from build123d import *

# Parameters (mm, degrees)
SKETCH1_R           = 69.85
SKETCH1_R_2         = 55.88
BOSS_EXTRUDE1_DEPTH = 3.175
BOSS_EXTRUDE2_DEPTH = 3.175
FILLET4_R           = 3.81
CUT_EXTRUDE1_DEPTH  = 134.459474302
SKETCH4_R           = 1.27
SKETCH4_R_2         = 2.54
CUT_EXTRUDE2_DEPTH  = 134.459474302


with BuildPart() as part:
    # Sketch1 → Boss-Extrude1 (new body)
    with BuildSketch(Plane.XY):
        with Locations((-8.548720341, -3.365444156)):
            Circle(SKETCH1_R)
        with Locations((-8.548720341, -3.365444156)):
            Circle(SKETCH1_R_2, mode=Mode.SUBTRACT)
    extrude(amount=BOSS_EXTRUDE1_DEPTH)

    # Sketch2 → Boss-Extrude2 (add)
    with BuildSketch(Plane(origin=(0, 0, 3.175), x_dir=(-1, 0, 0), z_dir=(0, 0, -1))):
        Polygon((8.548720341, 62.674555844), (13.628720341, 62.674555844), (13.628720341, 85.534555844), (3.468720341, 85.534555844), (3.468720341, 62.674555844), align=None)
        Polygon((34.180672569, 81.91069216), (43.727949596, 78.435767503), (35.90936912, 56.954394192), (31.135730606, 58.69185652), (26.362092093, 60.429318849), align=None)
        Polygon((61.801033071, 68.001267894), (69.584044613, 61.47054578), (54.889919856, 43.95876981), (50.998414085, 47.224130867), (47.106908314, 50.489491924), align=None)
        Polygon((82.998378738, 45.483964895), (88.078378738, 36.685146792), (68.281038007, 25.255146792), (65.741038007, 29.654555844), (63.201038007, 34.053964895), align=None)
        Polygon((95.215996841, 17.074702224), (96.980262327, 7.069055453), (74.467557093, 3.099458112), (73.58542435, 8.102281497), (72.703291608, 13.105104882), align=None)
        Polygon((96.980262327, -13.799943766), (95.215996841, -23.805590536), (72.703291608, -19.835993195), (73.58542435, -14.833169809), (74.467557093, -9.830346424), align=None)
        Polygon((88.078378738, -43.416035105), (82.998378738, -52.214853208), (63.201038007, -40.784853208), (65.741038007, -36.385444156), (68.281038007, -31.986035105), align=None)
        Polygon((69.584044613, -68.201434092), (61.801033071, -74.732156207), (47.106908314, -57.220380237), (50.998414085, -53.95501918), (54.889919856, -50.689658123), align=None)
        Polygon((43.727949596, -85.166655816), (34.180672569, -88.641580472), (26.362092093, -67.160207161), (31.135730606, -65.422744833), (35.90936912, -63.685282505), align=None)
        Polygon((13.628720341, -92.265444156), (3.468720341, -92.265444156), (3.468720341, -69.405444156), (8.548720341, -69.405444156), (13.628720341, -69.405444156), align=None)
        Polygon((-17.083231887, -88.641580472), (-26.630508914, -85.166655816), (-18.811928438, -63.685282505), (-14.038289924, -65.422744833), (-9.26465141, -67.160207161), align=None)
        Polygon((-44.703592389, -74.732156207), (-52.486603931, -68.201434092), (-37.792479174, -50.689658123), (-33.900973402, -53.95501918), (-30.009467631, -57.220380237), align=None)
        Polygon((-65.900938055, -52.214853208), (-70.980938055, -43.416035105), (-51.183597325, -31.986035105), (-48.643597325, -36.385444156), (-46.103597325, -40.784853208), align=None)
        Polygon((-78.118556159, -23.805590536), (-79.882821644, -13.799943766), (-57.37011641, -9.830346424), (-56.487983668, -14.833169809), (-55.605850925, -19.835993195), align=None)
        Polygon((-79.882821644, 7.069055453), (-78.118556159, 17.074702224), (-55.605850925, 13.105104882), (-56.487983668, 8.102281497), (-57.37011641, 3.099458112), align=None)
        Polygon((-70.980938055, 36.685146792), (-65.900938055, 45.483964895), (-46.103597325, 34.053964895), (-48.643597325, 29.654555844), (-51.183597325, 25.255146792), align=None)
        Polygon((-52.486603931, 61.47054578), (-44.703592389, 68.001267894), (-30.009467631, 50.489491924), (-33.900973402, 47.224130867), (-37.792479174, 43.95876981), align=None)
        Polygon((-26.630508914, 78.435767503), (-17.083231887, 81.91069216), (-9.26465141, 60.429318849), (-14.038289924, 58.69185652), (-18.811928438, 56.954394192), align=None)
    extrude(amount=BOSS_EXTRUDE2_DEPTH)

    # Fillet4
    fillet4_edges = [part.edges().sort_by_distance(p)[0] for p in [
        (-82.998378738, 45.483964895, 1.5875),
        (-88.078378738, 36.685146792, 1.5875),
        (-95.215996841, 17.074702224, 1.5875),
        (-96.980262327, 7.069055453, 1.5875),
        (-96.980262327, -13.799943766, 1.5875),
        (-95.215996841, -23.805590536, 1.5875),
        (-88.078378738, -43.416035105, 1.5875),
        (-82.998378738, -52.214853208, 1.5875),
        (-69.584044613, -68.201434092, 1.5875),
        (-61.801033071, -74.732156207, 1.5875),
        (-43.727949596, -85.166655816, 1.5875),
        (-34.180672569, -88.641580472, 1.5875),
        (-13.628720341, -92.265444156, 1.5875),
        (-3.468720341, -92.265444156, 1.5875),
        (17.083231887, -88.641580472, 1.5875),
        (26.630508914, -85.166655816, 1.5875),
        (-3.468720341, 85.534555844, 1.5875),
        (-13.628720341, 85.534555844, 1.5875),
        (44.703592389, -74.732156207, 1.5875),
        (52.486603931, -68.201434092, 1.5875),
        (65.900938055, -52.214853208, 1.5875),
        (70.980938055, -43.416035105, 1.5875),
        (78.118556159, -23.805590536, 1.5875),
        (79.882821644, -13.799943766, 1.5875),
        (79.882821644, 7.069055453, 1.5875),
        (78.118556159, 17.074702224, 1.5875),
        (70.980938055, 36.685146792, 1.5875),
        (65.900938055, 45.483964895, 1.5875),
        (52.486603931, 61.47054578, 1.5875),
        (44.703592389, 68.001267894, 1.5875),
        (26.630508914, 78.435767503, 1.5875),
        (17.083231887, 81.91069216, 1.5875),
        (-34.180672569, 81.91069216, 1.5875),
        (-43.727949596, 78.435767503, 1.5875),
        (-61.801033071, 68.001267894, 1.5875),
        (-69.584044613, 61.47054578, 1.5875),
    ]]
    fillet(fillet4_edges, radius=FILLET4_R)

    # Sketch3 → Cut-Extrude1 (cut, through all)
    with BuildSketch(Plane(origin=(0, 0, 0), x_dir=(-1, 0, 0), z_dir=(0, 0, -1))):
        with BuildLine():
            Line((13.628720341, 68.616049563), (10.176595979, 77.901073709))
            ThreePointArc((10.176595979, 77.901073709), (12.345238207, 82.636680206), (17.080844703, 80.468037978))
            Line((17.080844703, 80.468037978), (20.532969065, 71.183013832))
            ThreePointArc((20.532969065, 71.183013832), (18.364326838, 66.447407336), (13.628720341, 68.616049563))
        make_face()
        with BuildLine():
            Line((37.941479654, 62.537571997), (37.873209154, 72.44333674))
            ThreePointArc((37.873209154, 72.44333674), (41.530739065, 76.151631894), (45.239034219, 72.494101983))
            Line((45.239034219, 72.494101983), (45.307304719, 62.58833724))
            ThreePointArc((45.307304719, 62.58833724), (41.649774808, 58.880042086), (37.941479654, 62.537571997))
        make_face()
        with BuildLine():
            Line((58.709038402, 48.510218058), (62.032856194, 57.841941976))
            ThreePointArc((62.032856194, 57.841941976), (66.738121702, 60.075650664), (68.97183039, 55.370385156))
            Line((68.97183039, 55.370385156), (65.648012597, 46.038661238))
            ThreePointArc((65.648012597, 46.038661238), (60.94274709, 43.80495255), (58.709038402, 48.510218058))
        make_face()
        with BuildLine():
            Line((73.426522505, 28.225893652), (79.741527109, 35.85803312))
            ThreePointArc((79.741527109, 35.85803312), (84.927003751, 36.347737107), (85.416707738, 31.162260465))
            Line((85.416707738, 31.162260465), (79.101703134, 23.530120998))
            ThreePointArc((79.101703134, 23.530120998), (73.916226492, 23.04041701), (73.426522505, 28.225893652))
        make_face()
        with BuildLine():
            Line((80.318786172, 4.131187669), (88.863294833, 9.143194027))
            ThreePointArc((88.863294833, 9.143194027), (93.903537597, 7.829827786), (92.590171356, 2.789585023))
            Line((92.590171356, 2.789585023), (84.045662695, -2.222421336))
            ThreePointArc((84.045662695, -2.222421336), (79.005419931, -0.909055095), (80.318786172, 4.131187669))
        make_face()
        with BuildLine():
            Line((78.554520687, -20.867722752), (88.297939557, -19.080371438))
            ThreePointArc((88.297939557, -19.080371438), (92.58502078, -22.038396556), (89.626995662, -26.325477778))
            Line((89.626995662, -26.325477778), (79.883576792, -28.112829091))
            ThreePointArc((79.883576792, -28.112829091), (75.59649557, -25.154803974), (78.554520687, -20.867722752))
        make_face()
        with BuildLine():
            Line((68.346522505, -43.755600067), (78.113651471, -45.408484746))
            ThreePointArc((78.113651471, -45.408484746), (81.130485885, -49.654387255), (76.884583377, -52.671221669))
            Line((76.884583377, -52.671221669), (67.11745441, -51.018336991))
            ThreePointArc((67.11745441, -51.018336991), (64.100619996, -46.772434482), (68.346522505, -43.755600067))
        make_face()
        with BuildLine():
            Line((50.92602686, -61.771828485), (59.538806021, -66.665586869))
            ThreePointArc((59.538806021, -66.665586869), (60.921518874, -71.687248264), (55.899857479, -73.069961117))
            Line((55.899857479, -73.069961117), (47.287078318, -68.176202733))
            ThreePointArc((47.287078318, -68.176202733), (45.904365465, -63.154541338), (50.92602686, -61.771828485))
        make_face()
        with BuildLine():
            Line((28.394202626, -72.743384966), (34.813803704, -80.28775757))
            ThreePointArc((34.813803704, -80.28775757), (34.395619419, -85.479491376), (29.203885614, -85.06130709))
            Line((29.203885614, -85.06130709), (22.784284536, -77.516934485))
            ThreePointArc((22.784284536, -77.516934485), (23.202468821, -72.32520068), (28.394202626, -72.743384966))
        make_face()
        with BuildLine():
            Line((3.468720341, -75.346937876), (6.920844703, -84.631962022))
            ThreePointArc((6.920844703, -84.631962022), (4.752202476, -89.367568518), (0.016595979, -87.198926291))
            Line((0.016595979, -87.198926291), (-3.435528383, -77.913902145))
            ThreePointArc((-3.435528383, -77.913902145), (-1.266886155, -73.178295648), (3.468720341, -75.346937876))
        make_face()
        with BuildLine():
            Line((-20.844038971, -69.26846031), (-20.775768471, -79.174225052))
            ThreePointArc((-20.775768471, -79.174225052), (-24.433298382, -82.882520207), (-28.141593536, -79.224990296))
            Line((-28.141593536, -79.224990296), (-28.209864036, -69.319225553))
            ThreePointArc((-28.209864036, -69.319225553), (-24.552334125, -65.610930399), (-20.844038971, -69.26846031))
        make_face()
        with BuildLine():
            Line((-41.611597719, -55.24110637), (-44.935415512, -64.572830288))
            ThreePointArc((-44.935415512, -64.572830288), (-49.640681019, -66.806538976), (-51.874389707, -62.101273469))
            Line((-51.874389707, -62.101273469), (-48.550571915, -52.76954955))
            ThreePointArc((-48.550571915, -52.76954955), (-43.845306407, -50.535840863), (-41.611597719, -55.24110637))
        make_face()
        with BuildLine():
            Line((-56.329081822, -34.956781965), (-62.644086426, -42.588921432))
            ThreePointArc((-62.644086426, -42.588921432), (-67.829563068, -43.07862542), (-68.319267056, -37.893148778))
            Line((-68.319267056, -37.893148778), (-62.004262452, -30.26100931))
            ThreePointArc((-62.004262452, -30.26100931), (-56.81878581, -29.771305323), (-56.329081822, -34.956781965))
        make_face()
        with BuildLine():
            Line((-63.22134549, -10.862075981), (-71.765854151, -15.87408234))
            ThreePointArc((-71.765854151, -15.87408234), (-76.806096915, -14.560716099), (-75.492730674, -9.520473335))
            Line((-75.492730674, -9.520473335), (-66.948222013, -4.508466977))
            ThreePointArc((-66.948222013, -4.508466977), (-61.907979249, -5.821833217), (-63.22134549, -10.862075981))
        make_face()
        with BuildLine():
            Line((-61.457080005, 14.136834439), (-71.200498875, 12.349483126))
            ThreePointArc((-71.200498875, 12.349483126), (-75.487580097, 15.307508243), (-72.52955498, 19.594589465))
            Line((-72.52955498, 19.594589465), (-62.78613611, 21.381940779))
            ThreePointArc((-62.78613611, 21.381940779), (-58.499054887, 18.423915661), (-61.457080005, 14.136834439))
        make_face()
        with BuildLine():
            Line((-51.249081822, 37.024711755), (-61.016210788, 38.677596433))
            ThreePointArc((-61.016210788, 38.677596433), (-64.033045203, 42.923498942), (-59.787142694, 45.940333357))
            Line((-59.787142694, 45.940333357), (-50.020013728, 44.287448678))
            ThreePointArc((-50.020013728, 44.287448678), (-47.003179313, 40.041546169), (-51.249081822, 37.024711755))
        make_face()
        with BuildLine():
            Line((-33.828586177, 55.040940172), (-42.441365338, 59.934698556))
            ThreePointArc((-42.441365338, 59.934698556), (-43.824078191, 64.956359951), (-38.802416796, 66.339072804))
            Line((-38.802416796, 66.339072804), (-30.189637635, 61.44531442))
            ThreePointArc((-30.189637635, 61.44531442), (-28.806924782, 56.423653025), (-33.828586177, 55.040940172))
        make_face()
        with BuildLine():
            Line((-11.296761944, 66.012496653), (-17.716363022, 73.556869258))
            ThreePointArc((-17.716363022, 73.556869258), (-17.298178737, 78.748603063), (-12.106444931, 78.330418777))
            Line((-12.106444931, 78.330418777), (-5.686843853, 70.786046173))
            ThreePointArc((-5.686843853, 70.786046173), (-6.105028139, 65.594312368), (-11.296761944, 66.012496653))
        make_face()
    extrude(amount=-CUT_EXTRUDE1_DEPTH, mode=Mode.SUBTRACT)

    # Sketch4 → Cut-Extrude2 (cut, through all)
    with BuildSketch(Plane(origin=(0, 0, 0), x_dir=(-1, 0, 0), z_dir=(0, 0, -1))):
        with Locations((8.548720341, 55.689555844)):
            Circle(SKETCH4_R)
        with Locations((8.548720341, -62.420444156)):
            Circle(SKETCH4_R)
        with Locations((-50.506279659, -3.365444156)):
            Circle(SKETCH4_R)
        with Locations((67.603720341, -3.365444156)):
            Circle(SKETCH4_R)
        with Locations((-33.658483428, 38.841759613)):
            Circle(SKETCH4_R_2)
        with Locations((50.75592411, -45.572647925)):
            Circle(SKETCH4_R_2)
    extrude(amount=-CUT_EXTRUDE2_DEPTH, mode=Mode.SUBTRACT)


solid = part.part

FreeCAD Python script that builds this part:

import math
import FreeCAD as App
import Part
import Sketcher

V = App.Vector
Q = App.Units.Quantity


def edges_at(feature, points):
    """Names of the edges that pass closest to the given points."""
    edges = feature.Shape.Edges
    near = lambda p: min(range(len(edges)), key=lambda i: edges[i].distToShape(Part.Vertex(*p))[0])
    return sorted({f"Edge{near(p) + 1}" for p in points})

doc = App.newDocument("Part")
params = doc.addObject("Spreadsheet::Sheet", "Params")
for row, (alias, value) in enumerate([
    ("sketch1_diameter", "5.5 in"),
    ("sketch1_diameter2", "4.4 in"),
    ("pad1_length", "0.125 in"),
    ("sketch2_width", "0.4 in"),
    ("sketch2_height", "0.9 in"),
    ("sketch2_length", "0.4 in"),
    ("sketch2_length2", "0.9 in"),
    ("pad2_length", "0.125 in"),
    ("fillet_radius", "0.15 in"),
    ("sketch3_radius", "0.145 in"),
    ("sketch3_length", "0.39 in"),
    ("sketch4_diameter", "0.1 in"),
    ("sketch4_diameter2", "0.2 in"),
], start=1):
    params.set(f"A{row}", alias)
    params.set(f"B{row}", "=" + value)
    params.setAlias(f"B{row}", alias)

body = doc.addObject("PartDesign::Body", "Body")

# Sketch on XY plane
sketch1 = doc.addObject("Sketcher::SketchObject", "Sketch")
body.addObject(sketch1)
sketch1.AttachmentSupport = (doc.XY_Plane, [""])
sketch1.MapMode = "FlatFace"
sketch1.addGeometry([
    Part.Circle(V(-9, -3, 0), V(0, 0, 1), 70),
    Part.Circle(V(-9, -3, 0), V(0, 0, 1), 56),
], False)
sketch1.addConstraint([
    Sketcher.Constraint("Coincident", 1, 3, 0, 3),
    Sketcher.Constraint("Diameter", 0, Q("5.5 in")),
    Sketcher.Constraint("Diameter", 1, Q("4.4 in")),
    Sketcher.Constraint("DistanceX", 0, 3, -1, 1, 8.54872),
    Sketcher.Constraint("DistanceY", 0, 3, -1, 1, 3.365444),
])
sketch1.setExpression("Constraints[1]", "Params.sketch1_diameter")
sketch1.setExpression("Constraints[2]", "Params.sketch1_diameter2")
pad1 = doc.addObject("PartDesign::Pad", "Pad")
body.addObject(pad1)
pad1.Profile = sketch1
pad1.setExpression("Length", "Params.pad1_length")

# Sketch on XY plane
sketch2 = doc.addObject("Sketcher::SketchObject", "Sketch001")
body.addObject(sketch2)
sketch2.AttachmentSupport = (doc.XY_Plane, [""])
sketch2.MapMode = "FlatFace"
sketch2.AttachmentOffset = App.Placement(V(0, 0, 0.125 * 25.4), App.Rotation())
sketch2.addGeometry([
    Part.LineSegment(V(-14, 63, 0), V(-14, 86, 0)),  # 0
    Part.LineSegment(V(-14, 86, 0), V(-3, 86, 0)),  # 1
    Part.LineSegment(V(-3, 86, 0), V(-3, 63, 0)),  # 2
    Part.LineSegment(V(-3, 63, 0), V(-14, 63, 0)),  # 3
    Part.LineSegment(V(-44, 78, 0), V(-34, 82, 0)),  # 4
    Part.LineSegment(V(-34, 82, 0), V(-26, 60, 0)),  # 5
    Part.LineSegment(V(-26, 60, 0), V(-31, 59, 0)),  # 6
    Part.LineSegment(V(-31, 59, 0), V(-36, 57, 0)),  # 7
    Part.LineSegment(V(-36, 57, 0), V(-44, 78, 0)),  # 8
    Part.LineSegment(V(-70, 61, 0), V(-62, 68, 0)),  # 9
    Part.LineSegment(V(-62, 68, 0), V(-47, 50, 0)),  # 10
    Part.LineSegment(V(-47, 50, 0), V(-55, 44, 0)),  # 11
    Part.LineSegment(V(-55, 44, 0), V(-70, 61, 0)),  # 12
    Part.LineSegment(V(-88, 37, 0), V(-83, 45, 0)),  # 13
    Part.LineSegment(V(-83, 45, 0), V(-63, 34, 0)),  # 14
    Part.LineSegment(V(-63, 34, 0), V(-66, 30, 0)),  # 15
    Part.LineSegment(V(-66, 30, 0), V(-68, 25, 0)),  # 16
    Part.LineSegment(V(-68, 25, 0), V(-88, 37, 0)),  # 17
    Part.LineSegment(V(-97, 7, 0), V(-95, 17, 0)),  # 18
    Part.LineSegment(V(-95, 17, 0), V(-73, 13, 0)),  # 19
    Part.LineSegment(V(-73, 13, 0), V(-74, 8, 0)),  # 20
    Part.LineSegment(V(-74, 8, 0), V(-74, 3, 0)),  # 21
    Part.LineSegment(V(-74, 3, 0), V(-97, 7, 0)),  # 22
    Part.LineSegment(V(-95, -24, 0), V(-97, -14, 0)),  # 23
    Part.LineSegment(V(-97, -14, 0), V(-74, -10, 0)),  # 24
    Part.LineSegment(V(-74, -10, 0), V(-74, -15, 0)),  # 25
    Part.LineSegment(V(-74, -15, 0), V(-73, -20, 0)),  # 26
    Part.LineSegment(V(-73, -20, 0), V(-95, -24, 0)),  # 27
    Part.LineSegment(V(-83, -52, 0), V(-88, -43, 0)),  # 28
    Part.LineSegment(V(-88, -43, 0), V(-68, -32, 0)),  # 29
    Part.LineSegment(V(-68, -32, 0), V(-66, -36, 0)),  # 30
    Part.LineSegment(V(-66, -36, 0), V(-63, -41, 0)),  # 31
    Part.LineSegment(V(-63, -41, 0), V(-83, -52, 0)),  # 32
    Part.LineSegment(V(-62, -75, 0), V(-70, -68, 0)),  # 33
    Part.LineSegment(V(-70, -68, 0), V(-55, -51, 0)),  # 34
    Part.LineSegment(V(-55, -51, 0), V(-47, -57, 0)),  # 35
    Part.LineSegment(V(-47, -57, 0), V(-62, -75, 0)),  # 36
    Part.LineSegment(V(-34, -89, 0), V(-44, -85, 0)),  # 37
    Part.LineSegment(V(-44, -85, 0), V(-36, -64, 0)),  # 38
    Part.LineSegment(V(-36, -64, 0), V(-31, -65, 0)),  # 39
    Part.LineSegment(V(-31, -65, 0), V(-26, -67, 0)),  # 40
    Part.LineSegment(V(-26, -67, 0), V(-34, -89, 0)),  # 41
    Part.LineSegment(V(-3, -92, 0), V(-14, -92, 0)),  # 42
    Part.LineSegment(V(-14, -92, 0), V(-14, -69, 0)),  # 43
    Part.LineSegment(V(-14, -69, 0), V(-3, -69, 0)),  # 44
    Part.LineSegment(V(-3, -69, 0), V(-3, -92, 0)),  # 45
    Part.LineSegment(V(27, -85, 0), V(17, -89, 0)),  # 46
    Part.LineSegment(V(17, -89, 0), V(9, -67, 0)),  # 47
    Part.LineSegment(V(9, -67, 0), V(19, -64, 0)),  # 48
    Part.LineSegment(V(19, -64, 0), V(27, -85, 0)),  # 49
    Part.LineSegment(V(52, -68, 0), V(45, -75, 0)),  # 50
    Part.LineSegment(V(45, -75, 0), V(30, -57, 0)),  # 51
    Part.LineSegment(V(30, -57, 0), V(34, -54, 0)),  # 52
    Part.LineSegment(V(34, -54, 0), V(38, -51, 0)),  # 53
    Part.LineSegment(V(38, -51, 0), V(52, -68, 0)),  # 54
    Part.LineSegment(V(71, -43, 0), V(66, -52, 0)),  # 55
    Part.LineSegment(V(66, -52, 0), V(46, -41, 0)),  # 56
    Part.LineSegment(V(46, -41, 0), V(49, -36, 0)),  # 57
    Part.LineSegment(V(49, -36, 0), V(51, -32, 0)),  # 58
    Part.LineSegment(V(51, -32, 0), V(71, -43, 0)),  # 59
    Part.LineSegment(V(80, -14, 0), V(78, -24, 0)),  # 60
    Part.LineSegment(V(78, -24, 0), V(56, -20, 0)),  # 61
    Part.LineSegment(V(56, -20, 0), V(56, -15, 0)),  # 62
    Part.LineSegment(V(56, -15, 0), V(57, -10, 0)),  # 63
    Part.LineSegment(V(57, -10, 0), V(80, -14, 0)),  # 64
    Part.LineSegment(V(78, 17, 0), V(80, 7, 0)),  # 65
    Part.LineSegment(V(80, 7, 0), V(57, 3, 0)),  # 66
    Part.LineSegment(V(57, 3, 0), V(56, 8, 0)),  # 67
    Part.LineSegment(V(56, 8, 0), V(56, 13, 0)),  # 68
    Part.LineSegment(V(56, 13, 0), V(78, 17, 0)),  # 69
    Part.LineSegment(V(66, 45, 0), V(71, 37, 0)),  # 70
    Part.LineSegment(V(71, 37, 0), V(51, 25, 0)),  # 71
    Part.LineSegment(V(51, 25, 0), V(49, 30, 0)),  # 72
    Part.LineSegment(V(49, 30, 0), V(46, 34, 0)),  # 73
    Part.LineSegment(V(46, 34, 0), V(66, 45, 0)),  # 74
    Part.LineSegment(V(45, 68, 0), V(52, 61, 0)),  # 75
    Part.LineSegment(V(52, 61, 0), V(38, 44, 0)),  # 76
    Part.LineSegment(V(38, 44, 0), V(34, 47, 0)),  # 77
    Part.LineSegment(V(34, 47, 0), V(30, 50, 0)),  # 78
    Part.LineSegment(V(30, 50, 0), V(45, 68, 0)),  # 79
    Part.LineSegment(V(17, 82, 0), V(27, 78, 0)),  # 80
    Part.LineSegment(V(27, 78, 0), V(19, 57, 0)),  # 81
    Part.LineSegment(V(19, 57, 0), V(14, 59, 0)),  # 82
    Part.LineSegment(V(14, 59, 0), V(9, 60, 0)),  # 83
    Part.LineSegment(V(9, 60, 0), V(17, 82, 0)),  # 84
], False)
sketch2.addConstraint([
    Sketcher.Constraint("Coincident", 0, 2, 1, 1),
    Sketcher.Constraint("Coincident", 1, 2, 2, 1),
    Sketcher.Constraint("Coincident", 2, 2, 3, 1),
    Sketcher.Constraint("Coincident", 3, 2, 0, 1),
    Sketcher.Constraint("Coincident", 4, 2, 5, 1),
    Sketcher.Constraint("Coincident", 5, 2, 6, 1),
    Sketcher.Constraint("Coincident", 6, 2, 7, 1),
    Sketcher.Constraint("Coincident", 7, 2, 8, 1),
    Sketcher.Constraint("Coincident", 8, 2, 4, 1),
    Sketcher.Constraint("Coincident", 9, 2, 10, 1),
    Sketcher.Constraint("Coincident", 10, 2, 11, 1),
    Sketcher.Constraint("Coincident", 11, 2, 12, 1),
    Sketcher.Constraint("Coincident", 12, 2, 9, 1),
    Sketcher.Constraint("Coincident", 13, 2, 14, 1),
    Sketcher.Constraint("Coincident", 14, 2, 15, 1),
    Sketcher.Constraint("Coincident", 15, 2, 16, 1),
    Sketcher.Constraint("Coincident", 16, 2, 17, 1),
    Sketcher.Constraint("Coincident", 17, 2, 13, 1),
    Sketcher.Constraint("Coincident", 18, 2, 19, 1),
    Sketcher.Constraint("Coincident", 19, 2, 20, 1),
    Sketcher.Constraint("Coincident", 20, 2, 21, 1),
    Sketcher.Constraint("Coincident", 21, 2, 22, 1),
    Sketcher.Constraint("Coincident", 22, 2, 18, 1),
    Sketcher.Constraint("Coincident", 23, 2, 24, 1),
    Sketcher.Constraint("Coincident", 24, 2, 25, 1),
    Sketcher.Constraint("Coincident", 25, 2, 26, 1),
    Sketcher.Constraint("Coincident", 26, 2, 27, 1),
    Sketcher.Constraint("Coincident", 27, 2, 23, 1),
    Sketcher.Constraint("Coincident", 28, 2, 29, 1),
    Sketcher.Constraint("Coincident", 29, 2, 30, 1),
    Sketcher.Constraint("Coincident", 30, 2, 31, 1),
    Sketcher.Constraint("Coincident", 31, 2, 32, 1),
    Sketcher.Constraint("Coincident", 32, 2, 28, 1),
    Sketcher.Constraint("Coincident", 33, 2, 34, 1),
    Sketcher.Constraint("Coincident", 34, 2, 35, 1),
    Sketcher.Constraint("Coincident", 35, 2, 36, 1),
    Sketcher.Constraint("Coincident", 36, 2, 33, 1),
    Sketcher.Constraint("Coincident", 37, 2, 38, 1),
    Sketcher.Constraint("Coincident", 38, 2, 39, 1),
    Sketcher.Constraint("Coincident", 39, 2, 40, 1),
    Sketcher.Constraint("Coincident", 40, 2, 41, 1),
    Sketcher.Constraint("Coincident", 41, 2, 37, 1),
    Sketcher.Constraint("Coincident", 42, 2, 43, 1),
    Sketcher.Constraint("Coincident", 43, 2, 44, 1),
    Sketcher.Constraint("Coincident", 44, 2, 45, 1),
    Sketcher.Constraint("Coincident", 45, 2, 42, 1),
    Sketcher.Constraint("Coincident", 46, 2, 47, 1),
    Sketcher.Constraint("Coincident", 47, 2, 48, 1),
    Sketcher.Constraint("Coincident", 48, 2, 49, 1),
    Sketcher.Constraint("Coincident", 49, 2, 46, 1),
    Sketcher.Constraint("Coincident", 50, 2, 51, 1),
    Sketcher.Constraint("Coincident", 51, 2, 52, 1),
    Sketcher.Constraint("Coincident", 52, 2, 53, 1),
    Sketcher.Constraint("Coincident", 53, 2, 54, 1),
    Sketcher.Constraint("Coincident", 54, 2, 50, 1),
    Sketcher.Constraint("Coincident", 55, 2, 56, 1),
    Sketcher.Constraint("Coincident", 56, 2, 57, 1),
    Sketcher.Constraint("Coincident", 57, 2, 58, 1),
    Sketcher.Constraint("Coincident", 58, 2, 59, 1),
    Sketcher.Constraint("Coincident", 59, 2, 55, 1),
    Sketcher.Constraint("Coincident", 60, 2, 61, 1),
    Sketcher.Constraint("Coincident", 61, 2, 62, 1),
    Sketcher.Constraint("Coincident", 62, 2, 63, 1),
    Sketcher.Constraint("Coincident", 63, 2, 64, 1),
    Sketcher.Constraint("Coincident", 64, 2, 60, 1),
    Sketcher.Constraint("Coincident", 65, 2, 66, 1),
    Sketcher.Constraint("Coincident", 66, 2, 67, 1),
    Sketcher.Constraint("Coincident", 67, 2, 68, 1),
    Sketcher.Constraint("Coincident", 68, 2, 69, 1),
    Sketcher.Constraint("Coincident", 69, 2, 65, 1),
    Sketcher.Constraint("Coincident", 70, 2, 71, 1),
    Sketcher.Constraint("Coincident", 71, 2, 72, 1),
    Sketcher.Constraint("Coincident", 72, 2, 73, 1),
    Sketcher.Constraint("Coincident", 73, 2, 74, 1),
    Sketcher.Constraint("Coincident", 74, 2, 70, 1),
    Sketcher.Constraint("Coincident", 75, 2, 76, 1),
    Sketcher.Constraint("Coincident", 76, 2, 77, 1),
    Sketcher.Constraint("Coincident", 77, 2, 78, 1),
    Sketcher.Constraint("Coincident", 78, 2, 79, 1),
    Sketcher.Constraint("Coincident", 79, 2, 75, 1),
    Sketcher.Constraint("Coincident", 80, 2, 81, 1),
    Sketcher.Constraint("Coincident", 81, 2, 82, 1),
    Sketcher.Constraint("Coincident", 82, 2, 83, 1),
    Sketcher.Constraint("Coincident", 83, 2, 84, 1),
    Sketcher.Constraint("Coincident", 84, 2, 80, 1),
    Sketcher.Constraint("Vertical", 0),
    Sketcher.Constraint("Horizontal", 1),
    Sketcher.Constraint("Vertical", 2),
    Sketcher.Constraint("Horizontal", 3),
    Sketcher.Constraint("Horizontal", 42),
    Sketcher.Constraint("Vertical", 43),
    Sketcher.Constraint("Horizontal", 44),
    Sketcher.Constraint("Vertical", 45),
    Sketcher.Constraint("Perpendicular", 4, 5),
    Sketcher.Constraint("Perpendicular", 5, 6),
    Sketcher.Constraint("Parallel", 6, 7),
    Sketcher.Constraint("Perpendicular", 7, 8),
    Sketcher.Constraint("Perpendicular", 9, 10),
    Sketcher.Constraint("Perpendicular", 10, 11),
    Sketcher.Constraint("Perpendicular", 11, 12),
    Sketcher.Constraint("Perpendicular", 13, 14),
    Sketcher.Constraint("Perpendicular", 14, 15),
    Sketcher.Constraint("Parallel", 15, 16),
    Sketcher.Constraint("Perpendicular", 16, 17),
    Sketcher.Constraint("Perpendicular", 18, 19),
    Sketcher.Constraint("Perpendicular", 19, 20),
    Sketcher.Constraint("Parallel", 20, 21),
    Sketcher.Constraint("Perpendicular", 21, 22),
    Sketcher.Constraint("Perpendicular", 23, 24),
    Sketcher.Constraint("Perpendicular", 24, 25),
    Sketcher.Constraint("Parallel", 25, 26),
    Sketcher.Constraint("Perpendicular", 26, 27),
    Sketcher.Constraint("Perpendicular", 28, 29),
    Sketcher.Constraint("Perpendicular", 29, 30),
    Sketcher.Constraint("Parallel", 30, 31),
    Sketcher.Constraint("Perpendicular", 31, 32),
    Sketcher.Constraint("Perpendicular", 33, 34),
    Sketcher.Constraint("Perpendicular", 34, 35),
    Sketcher.Constraint("Perpendicular", 35, 36),
    Sketcher.Constraint("Perpendicular", 37, 38),
    Sketcher.Constraint("Perpendicular", 38, 39),
    Sketcher.Constraint("Parallel", 39, 40),
    Sketcher.Constraint("Perpendicular", 40, 41),
    Sketcher.Constraint("Perpendicular", 8, 46),
    Sketcher.Constraint("Perpendicular", 46, 47),
    Sketcher.Constraint("Perpendicular", 47, 48),
    Sketcher.Constraint("Perpendicular", 48, 49),
    Sketcher.Constraint("Perpendicular", 12, 50),
    Sketcher.Constraint("Perpendicular", 50, 51),
    Sketcher.Constraint("Perpendicular", 51, 52),
    Sketcher.Constraint("Parallel", 52, 53),
    Sketcher.Constraint("Perpendicular", 53, 54),
    Sketcher.Constraint("Perpendicular", 17, 55),
    Sketcher.Constraint("Perpendicular", 55, 56),
    Sketcher.Constraint("Perpendicular", 56, 57),
    Sketcher.Constraint("Parallel", 57, 58),
    Sketcher.Constraint("Perpendicular", 58, 59),
    Sketcher.Constraint("Perpendicular", 22, 60),
    Sketcher.Constraint("Perpendicular", 60, 61),
    Sketcher.Constraint("Perpendicular", 61, 62),
    Sketcher.Constraint("Parallel", 62, 63),
    Sketcher.Constraint("Perpendicular", 63, 64),
    Sketcher.Constraint("Perpendicular", 27, 65),
    Sketcher.Constraint("Perpendicular", 65, 66),
    Sketcher.Constraint("Perpendicular", 66, 67),
    Sketcher.Constraint("Parallel", 67, 68),
    Sketcher.Constraint("Perpendicular", 68, 69),
    Sketcher.Constraint("Perpendicular", 32, 70),
    Sketcher.Constraint("Perpendicular", 70, 71),
    Sketcher.Constraint("Perpendicular", 71, 72),
    Sketcher.Constraint("Parallel", 72, 73),
    Sketcher.Constraint("Perpendicular", 73, 74),
    Sketcher.Constraint("Perpendicular", 36, 75),
    Sketcher.Constraint("Perpendicular", 75, 76),
    Sketcher.Constraint("Perpendicular", 76, 77),
    Sketcher.Constraint("Parallel", 77, 78),
    Sketcher.Constraint("Perpendicular", 78, 79),
    Sketcher.Constraint("Perpendicular", 41, 80),
    Sketcher.Constraint("Perpendicular", 80, 81),
    Sketcher.Constraint("Perpendicular", 81, 82),
    Sketcher.Constraint("Parallel", 82, 83),
    Sketcher.Constraint("Perpendicular", 83, 84),
    Sketcher.Constraint("Horizontal", 41, 2, 46, 2),
    Sketcher.Constraint("Horizontal", 40, 2, 47, 2),
    Sketcher.Constraint("Horizontal", 38, 2, 48, 2),
    Sketcher.Constraint("Horizontal", 36, 2, 50, 2),
    Sketcher.Constraint("Horizontal", 35, 2, 51, 2),
    Sketcher.Constraint("Horizontal", 34, 2, 53, 2),
    Sketcher.Constraint("Horizontal", 32, 2, 55, 2),
    Sketcher.Constraint("Horizontal", 31, 2, 56, 2),
    Sketcher.Constraint("Horizontal", 30, 2, 57, 2),
    Sketcher.Constraint("Horizontal", 29, 2, 58, 2),
    Sketcher.Constraint("Horizontal", 27, 2, 60, 2),
    Sketcher.Constraint("Horizontal", 26, 2, 61, 2),
    Sketcher.Constraint("Horizontal", 25, 2, 62, 2),
    Sketcher.Constraint("Horizontal", 24, 2, 63, 2),
    Sketcher.Constraint("Horizontal", 22, 2, 65, 2),
    Sketcher.Constraint("Horizontal", 21, 2, 66, 2),
    Sketcher.Constraint("Horizontal", 20, 2, 67, 2),
    Sketcher.Constraint("Horizontal", 19, 2, 68, 2),
    Sketcher.Constraint("Horizontal", 17, 2, 70, 2),
    Sketcher.Constraint("Horizontal", 16, 2, 71, 2),
    Sketcher.Constraint("Horizontal", 15, 2, 72, 2),
    Sketcher.Constraint("Horizontal", 14, 2, 73, 2),
    Sketcher.Constraint("Horizontal", 12, 2, 75, 2),
    Sketcher.Constraint("Horizontal", 11, 2, 76, 2),
    Sketcher.Constraint("Horizontal", 10, 2, 78, 2),
    Sketcher.Constraint("Horizontal", 8, 2, 80, 2),
    Sketcher.Constraint("Horizontal", 7, 2, 81, 2),
    Sketcher.Constraint("Horizontal", 6, 2, 82, 2),
    Sketcher.Constraint("Horizontal", 5, 2, 83, 2),
    Sketcher.Constraint("Vertical", 22, 2, 23, 2),
    Sketcher.Constraint("Vertical", 21, 2, 24, 2),
    Sketcher.Constraint("Vertical", 20, 2, 25, 2),
    Sketcher.Constraint("Vertical", 19, 2, 26, 2),
    Sketcher.Constraint("Vertical", 17, 2, 28, 2),
    Sketcher.Constraint("Vertical", 16, 2, 29, 2),
    Sketcher.Constraint("Vertical", 15, 2, 30, 2),
    Sketcher.Constraint("Vertical", 14, 2, 31, 2),
    Sketcher.Constraint("Vertical", 12, 2, 33, 2),
    Sketcher.Constraint("Vertical", 11, 2, 34, 2),
    Sketcher.Constraint("Vertical", 10, 2, 35, 2),
    Sketcher.Constraint("Vertical", 8, 2, 37, 2),
    Sketcher.Constraint("Vertical", 7, 2, 38, 2),
    Sketcher.Constraint("Vertical", 6, 2, 39, 2),
    Sketcher.Constraint("Vertical", 5, 2, 40, 2),
    Sketcher.Constraint("Vertical", 3, 2, 42, 2),
    Sketcher.Constraint("Vertical", 2, 2, 44, 2),
    Sketcher.Constraint("Vertical", 64, 2, 65, 2),
    Sketcher.Constraint("Vertical", 63, 2, 66, 2),
    Sketcher.Constraint("Vertical", 59, 2, 70, 2),
    Sketcher.Constraint("Vertical", 58, 2, 71, 2),
    Sketcher.Constraint("Vertical", 54, 2, 75, 2),
    Sketcher.Constraint("Vertical", 53, 2, 76, 2),
    Sketcher.Constraint("Vertical", 52, 2, 77, 2),
    Sketcher.Constraint("Vertical", 49, 2, 80, 2),
    Sketcher.Constraint("Vertical", 48, 2, 81, 2),
    Sketcher.Constraint("Equal", 2, 43),
    Sketcher.Constraint("Equal", 6, 7),
    Sketcher.Constraint("Equal", 4, 9),
    Sketcher.Constraint("Equal", 8, 10),
    Sketcher.Constraint("Equal", 11, 13),
    Sketcher.Constraint("Equal", 12, 14),
    Sketcher.Constraint("Equal", 7, 15),
    Sketcher.Constraint("Equal", 13, 18),
    Sketcher.Constraint("Equal", 17, 19),
    Sketcher.Constraint("Equal", 16, 20),
    Sketcher.Constraint("Equal", 40, 52),
    Sketcher.Constraint("DistanceX", 1, 1, 1, 2, Q("0.4 in")),
    Sketcher.Constraint("DistanceY", 0, 1, 0, 2, Q("0.9 in")),
    Sketcher.Constraint("Angle", 4, Q("20 deg")),
    Sketcher.Constraint("Angle", 9, Q("40 deg")),
    Sketcher.Constraint("Angle", 13, Q("60 deg")),
    Sketcher.Constraint("Angle", 18, Q("80 deg")),
    Sketcher.Constraint("Distance", 4, Q("0.4 in")),
    Sketcher.Constraint("Distance", 5, Q("0.9 in")),
    Sketcher.Constraint("DistanceX", 0, 2, -1, 1, 13.62872),
    Sketcher.Constraint("DistanceY", -1, 1, 5, 2, 60.429319),
    Sketcher.Constraint("DistanceX", 6, 2, -1, 1, 31.135731),
    Sketcher.Constraint("DistanceX", 10, 2, -1, 1, 47.106908),
    Sketcher.Constraint("DistanceY", -1, 1, 10, 2, 50.489492),
    Sketcher.Constraint("DistanceX", 13, 2, -1, 1, 82.998379),
    Sketcher.Constraint("DistanceX", 19, 2, -1, 1, 72.703292),
    Sketcher.Constraint("DistanceY", -1, 1, 20, 2, 8.102281),
    Sketcher.Constraint("DistanceY", 25, 2, -1, 1, 14.83317),
    Sketcher.Constraint("DistanceY", 34, 2, -1, 1, 50.689658),
    Sketcher.Constraint("DistanceY", 41, 2, -1, 1, 88.64158),
    Sketcher.Constraint("DistanceX", -1, 1, 46, 2, 17.083232),
    Sketcher.Constraint("DistanceX", -1, 1, 53, 2, 37.792479),
    Sketcher.Constraint("DistanceX", -1, 1, 55, 2, 65.900938),
    Sketcher.Constraint("DistanceX", -1, 1, 61, 2, 55.605851),
    Sketcher.Constraint("DistanceY", -1, 1, 0, 2, 85.534556),
    Sketcher.Constraint("DistanceY", -1, 1, 13, 2, 45.483965),
    Sketcher.Constraint("DistanceY", 28, 2, -1, 1, 43.416035),
    Sketcher.Constraint("DistanceY", 42, 2, -1, 1, 92.265444),
])
sketch2.setExpression("Constraints[228]", "Params.sketch2_width")
sketch2.setExpression("Constraints[229]", "Params.sketch2_height")
sketch2.setExpression("Constraints[234]", "Params.sketch2_length")
sketch2.setExpression("Constraints[235]", "Params.sketch2_length2")
pad2 = doc.addObject("PartDesign::Pad", "Pad001")
body.addObject(pad2)
pad2.Profile = sketch2
pad2.setExpression("Length", "Params.pad2_length")
pad2.Reversed = True
doc.recompute()

fillet = doc.addObject("PartDesign::Fillet", "Fillet")
body.addObject(fillet)
fillet.Base = (pad2, edges_at(pad2, [
    (-82.998, 45.484, 1.587),
    (-88.078, 36.685, 1.587),
    (-95.216, 17.075, 1.587),
    (-96.98, 7.069, 1.587),
    (-96.98, -13.8, 1.587),
    (-95.216, -23.806, 1.587),
    (-88.078, -43.416, 1.587),
    (-82.998, -52.215, 1.587),
    (-69.584, -68.201, 1.587),
    (-61.801, -74.732, 1.587),
    (-43.728, -85.167, 1.587),
    (-34.181, -88.642, 1.587),
    (-13.629, -92.265, 1.587),
    (-3.469, -92.265, 1.587),
    (17.083, -88.642, 1.587),
    (26.631, -85.167, 1.587),
    (-3.469, 85.535, 1.587),
    (-13.629, 85.535, 1.587),
    (44.704, -74.732, 1.587),
    (52.487, -68.201, 1.587),
    (65.901, -52.215, 1.587),
    (70.981, -43.416, 1.587),
    (78.119, -23.806, 1.587),
    (79.883, -13.8, 1.587),
    (79.883, 7.069, 1.587),
    (78.119, 17.075, 1.587),
    (70.981, 36.685, 1.587),
    (65.901, 45.484, 1.587),
    (52.487, 61.471, 1.587),
    (44.704, 68.001, 1.587),
    (26.631, 78.436, 1.587),
    (17.083, 81.911, 1.587),
    (-34.181, 81.911, 1.587),
    (-43.728, 78.436, 1.587),
    (-61.801, 68.001, 1.587),
    (-69.584, 61.471, 1.587),
]))
fillet.setExpression("Radius", "Params.fillet_radius")

# Sketch on XY plane
sketch3 = doc.addObject("Sketcher::SketchObject", "Sketch002")
body.addObject(sketch3)
sketch3.AttachmentSupport = (doc.XY_Plane, [""])
sketch3.MapMode = "FlatFace"
sketch3.addGeometry([
    Part.LineSegment(V(-10.2, 77.9, 0), V(-13.6, 68.6, 0)),  # 0
    Part.ArcOfCircle(Part.Circle(V(-17.1, 69.9, 0), V(0, 0, 1), 3.7), math.radians(160), math.radians(340)),  # 1
    Part.LineSegment(V(-20.5, 71.2, 0), V(-17.1, 80.5, 0)),  # 2
    Part.ArcOfCircle(Part.Circle(V(-13.6, 79.2, 0), V(0, 0, 1), 3.7), math.radians(-20), math.radians(160)),  # 3
    Part.LineSegment(V(-37.9, 72.4, 0), V(-37.9, 62.5, 0)),  # 4
    Part.ArcOfCircle(Part.Circle(V(-41.6, 62.6, 0), V(0, 0, 1), 3.7), math.radians(180), math.radians(360)),  # 5
    Part.LineSegment(V(-45.3, 62.6, 0), V(-45.2, 72.5, 0)),  # 6
    Part.ArcOfCircle(Part.Circle(V(-41.6, 72.5, 0), V(0, 0, 1), 3.7), math.radians(0), math.radians(180)),  # 7
    Part.LineSegment(V(-62, 57.8, 0), V(-58.7, 48.5, 0)),  # 8
    Part.ArcOfCircle(Part.Circle(V(-62.2, 47.3, 0), V(0, 0, 1), 3.7), math.radians(-160), math.radians(20)),  # 9
    Part.LineSegment(V(-65.6, 46, 0), V(-69, 55.4, 0)),  # 10
    Part.ArcOfCircle(Part.Circle(V(-65.5, 56.6, 0), V(0, 0, 1), 3.7), math.radians(20), math.radians(200)),  # 11
    Part.LineSegment(V(-79.7, 35.9, 0), V(-73.4, 28.2, 0)),  # 12
    Part.ArcOfCircle(Part.Circle(V(-76.3, 25.9, 0), V(0, 0, 1), 3.7), math.radians(-140), math.radians(40)),  # 13
    Part.LineSegment(V(-79.1, 23.5, 0), V(-85.4, 31.2, 0)),  # 14
    Part.ArcOfCircle(Part.Circle(V(-82.6, 33.5, 0), V(0, 0, 1), 3.7), math.radians(40), math.radians(220)),  # 15
    Part.LineSegment(V(-88.9, 9.1, 0), V(-80.3, 4.1, 0)),  # 16
    Part.ArcOfCircle(Part.Circle(V(-82.2, 1, 0), V(0, 0, 1), 3.7), math.radians(-120), math.radians(60)),  # 17
    Part.LineSegment(V(-84, -2.2, 0), V(-92.6, 2.8, 0)),  # 18
    Part.ArcOfCircle(Part.Circle(V(-90.7, 6, 0), V(0, 0, 1), 3.7), math.radians(60), math.radians(240)),  # 19
    Part.LineSegment(V(-88.3, -19.1, 0), V(-78.6, -20.9, 0)),  # 20
    Part.ArcOfCircle(Part.Circle(V(-79.2, -24.5, 0), V(0, 0, 1), 3.7), math.radians(-100), math.radians(80)),  # 21
    Part.LineSegment(V(-79.9, -28.1, 0), V(-89.6, -26.3, 0)),  # 22
    Part.ArcOfCircle(Part.Circle(V(-89, -22.7, 0), V(0, 0, 1), 3.7), math.radians(80), math.radians(260)),  # 23
    Part.LineSegment(V(-78.1, -45.4, 0), V(-68.3, -43.8, 0)),  # 24
    Part.ArcOfCircle(Part.Circle(V(-67.7, -47.4, 0), V(0, 0, 1), 3.7), math.radians(-80), math.radians(100)),  # 25
    Part.LineSegment(V(-67.1, -51, 0), V(-76.9, -52.7, 0)),  # 26
    Part.ArcOfCircle(Part.Circle(V(-77.5, -49, 0), V(0, 0, 1), 3.7), math.radians(100), math.radians(280)),  # 27
    Part.LineSegment(V(-59.5, -66.7, 0), V(-50.9, -61.8, 0)),  # 28
    Part.ArcOfCircle(Part.Circle(V(-49.1, -65, 0), V(0, 0, 1), 3.7), math.radians(-60), math.radians(120)),  # 29
    Part.LineSegment(V(-47.3, -68.2, 0), V(-55.9, -73.1, 0)),  # 30
    Part.ArcOfCircle(Part.Circle(V(-57.7, -69.9, 0), V(0, 0, 1), 3.7), math.radians(120), math.radians(300)),  # 31
    Part.LineSegment(V(-34.8, -80.3, 0), V(-28.4, -72.7, 0)),  # 32
    Part.ArcOfCircle(Part.Circle(V(-25.6, -75.1, 0), V(0, 0, 1), 3.7), math.radians(-40), math.radians(140)),  # 33
    Part.LineSegment(V(-22.8, -77.5, 0), V(-29.2, -85.1, 0)),  # 34
    Part.ArcOfCircle(Part.Circle(V(-32, -82.7, 0), V(0, 0, 1), 3.7), math.radians(140), math.radians(320)),  # 35
    Part.LineSegment(V(-6.9, -84.6, 0), V(-3.5, -75.3, 0)),  # 36
    Part.ArcOfCircle(Part.Circle(V(0, -76.6, 0), V(0, 0, 1), 3.7), math.radians(-20), math.radians(160)),  # 37
    Part.LineSegment(V(3.4, -77.9, 0), V(0, -87.2, 0)),  # 38
    Part.ArcOfCircle(Part.Circle(V(-3.5, -85.9, 0), V(0, 0, 1), 3.7), math.radians(160), math.radians(340)),  # 39
    Part.LineSegment(V(20.8, -79.2, 0), V(20.8, -69.3, 0)),  # 40
    Part.ArcOfCircle(Part.Circle(V(24.5, -69.3, 0), V(0, 0, 1), 3.7), math.radians(0), math.radians(180)),  # 41
    Part.LineSegment(V(28.2, -69.3, 0), V(28.1, -79.2, 0)),  # 42
    Part.ArcOfCircle(Part.Circle(V(24.5, -79.2, 0), V(0, 0, 1), 3.7), math.radians(180), math.radians(360)),  # 43
    Part.LineSegment(V(44.9, -64.6, 0), V(41.6, -55.2, 0)),  # 44
    Part.ArcOfCircle(Part.Circle(V(45.1, -54, 0), V(0, 0, 1), 3.7), math.radians(20), math.radians(200)),  # 45
    Part.LineSegment(V(48.6, -52.8, 0), V(51.9, -62.1, 0)),  # 46
    Part.ArcOfCircle(Part.Circle(V(48.4, -63.3, 0), V(0, 0, 1), 3.7), math.radians(-160), math.radians(20)),  # 47
    Part.LineSegment(V(62.6, -42.6, 0), V(56.3, -35, 0)),  # 48
    Part.ArcOfCircle(Part.Circle(V(59.2, -32.6, 0), V(0, 0, 1), 3.7), math.radians(40), math.radians(220)),  # 49
    Part.LineSegment(V(62, -30.3, 0), V(68.3, -37.9, 0)),  # 50
    Part.ArcOfCircle(Part.Circle(V(65.5, -40.2, 0), V(0, 0, 1), 3.7), math.radians(-140), math.radians(40)),  # 51
    Part.LineSegment(V(71.8, -15.9, 0), V(63.2, -10.9, 0)),  # 52
    Part.ArcOfCircle(Part.Circle(V(65.1, -7.7, 0), V(0, 0, 1), 3.7), math.radians(60), math.radians(240)),  # 53
    Part.LineSegment(V(66.9, -4.5, 0), V(75.5, -9.5, 0)),  # 54
    Part.ArcOfCircle(Part.Circle(V(73.6, -12.7, 0), V(0, 0, 1), 3.7), math.radians(-120), math.radians(60)),  # 55
    Part.LineSegment(V(71.2, 12.3, 0), V(61.5, 14.1, 0)),  # 56
    Part.ArcOfCircle(Part.Circle(V(62.1, 17.8, 0), V(0, 0, 1), 3.7), math.radians(80), math.radians(260)),  # 57
    Part.LineSegment(V(62.8, 21.4, 0), V(72.5, 19.6, 0)),  # 58
    Part.ArcOfCircle(Part.Circle(V(71.9, 16, 0), V(0, 0, 1), 3.7), math.radians(-100), math.radians(80)),  # 59
    Part.LineSegment(V(61, 38.7, 0), V(51.2, 37, 0)),  # 60
    Part.ArcOfCircle(Part.Circle(V(50.6, 40.7, 0), V(0, 0, 1), 3.7), math.radians(100), math.radians(280)),  # 61
    Part.LineSegment(V(50, 44.3, 0), V(59.8, 45.9, 0)),  # 62
    Part.ArcOfCircle(Part.Circle(V(60.4, 42.3, 0), V(0, 0, 1), 3.7), math.radians(-80), math.radians(100)),  # 63
    Part.LineSegment(V(42.4, 59.9, 0), V(33.8, 55, 0)),  # 64
    Part.ArcOfCircle(Part.Circle(V(32, 58.2, 0), V(0, 0, 1), 3.7), math.radians(120), math.radians(300)),  # 65
    Part.LineSegment(V(30.2, 61.4, 0), V(38.8, 66.3, 0)),  # 66
    Part.ArcOfCircle(Part.Circle(V(40.6, 63.1, 0), V(0, 0, 1), 3.7), math.radians(-60), math.radians(120)),  # 67
    Part.LineSegment(V(17.7, 73.6, 0), V(11.3, 66, 0)),  # 68
    Part.ArcOfCircle(Part.Circle(V(8.5, 68.4, 0), V(0, 0, 1), 3.7), math.radians(140), math.radians(320)),  # 69
    Part.LineSegment(V(5.7, 70.8, 0), V(12.1, 78.3, 0)),  # 70
    Part.ArcOfCircle(Part.Circle(V(14.9, 75.9, 0), V(0, 0, 1), 3.7), math.radians(-40), math.radians(140)),  # 71
], False)
sketch3.addConstraint([
    Sketcher.Constraint("Tangent", 0, 2, 1, 2),
    Sketcher.Constraint("Tangent", 1, 1, 2, 1),
    Sketcher.Constraint("Tangent", 2, 2, 3, 2),
    Sketcher.Constraint("Tangent", 3, 1, 0, 1),
    Sketcher.Constraint("Tangent", 4, 2, 5, 2),
    Sketcher.Constraint("Tangent", 5, 1, 6, 1),
    Sketcher.Constraint("Tangent", 6, 2, 7, 2),
    Sketcher.Constraint("Tangent", 7, 1, 4, 1),
    Sketcher.Constraint("Tangent", 8, 2, 9, 2),
    Sketcher.Constraint("Tangent", 9, 1, 10, 1),
    Sketcher.Constraint("Tangent", 10, 2, 11, 2),
    Sketcher.Constraint("Tangent", 11, 1, 8, 1),
    Sketcher.Constraint("Tangent", 12, 2, 13, 2),
    Sketcher.Constraint("Tangent", 13, 1, 14, 1),
    Sketcher.Constraint("Tangent", 14, 2, 15, 2),
    Sketcher.Constraint("Tangent", 15, 1, 12, 1),
    Sketcher.Constraint("Tangent", 16, 2, 17, 2),
    Sketcher.Constraint("Tangent", 17, 1, 18, 1),
    Sketcher.Constraint("Tangent", 18, 2, 19, 2),
    Sketcher.Constraint("Tangent", 19, 1, 16, 1),
    Sketcher.Constraint("Tangent", 20, 2, 21, 2),
    Sketcher.Constraint("Tangent", 21, 1, 22, 1),
    Sketcher.Constraint("Tangent", 22, 2, 23, 2),
    Sketcher.Constraint("Tangent", 23, 1, 20, 1),
    Sketcher.Constraint("Tangent", 24, 2, 25, 2),
    Sketcher.Constraint("Tangent", 25, 1, 26, 1),
    Sketcher.Constraint("Tangent", 26, 2, 27, 2),
    Sketcher.Constraint("Tangent", 27, 1, 24, 1),
    Sketcher.Constraint("Tangent", 28, 2, 29, 2),
    Sketcher.Constraint("Tangent", 29, 1, 30, 1),
    Sketcher.Constraint("Tangent", 30, 2, 31, 2),
    Sketcher.Constraint("Tangent", 31, 1, 28, 1),
    Sketcher.Constraint("Tangent", 32, 2, 33, 2),
    Sketcher.Constraint("Tangent", 33, 1, 34, 1),
    Sketcher.Constraint("Tangent", 34, 2, 35, 2),
    Sketcher.Constraint("Tangent", 35, 1, 32, 1),
    Sketcher.Constraint("Tangent", 36, 2, 37, 2),
    Sketcher.Constraint("Tangent", 37, 1, 38, 1),
    Sketcher.Constraint("Tangent", 38, 2, 39, 2),
    Sketcher.Constraint("Tangent", 39, 1, 36, 1),
    Sketcher.Constraint("Tangent", 40, 2, 41, 2),
    Sketcher.Constraint("Tangent", 41, 1, 42, 1),
    Sketcher.Constraint("Tangent", 42, 2, 43, 2),
    Sketcher.Constraint("Tangent", 43, 1, 40, 1),
    Sketcher.Constraint("Tangent", 44, 2, 45, 2),
    Sketcher.Constraint("Tangent", 45, 1, 46, 1),
    Sketcher.Constraint("Tangent", 46, 2, 47, 2),
    Sketcher.Constraint("Tangent", 47, 1, 44, 1),
    Sketcher.Constraint("Tangent", 48, 2, 49, 2),
    Sketcher.Constraint("Tangent", 49, 1, 50, 1),
    Sketcher.Constraint("Tangent", 50, 2, 51, 2),
    Sketcher.Constraint("Tangent", 51, 1, 48, 1),
    Sketcher.Constraint("Tangent", 52, 2, 53, 2),
    Sketcher.Constraint("Tangent", 53, 1, 54, 1),
    Sketcher.Constraint("Tangent", 54, 2, 55, 2),
    Sketcher.Constraint("Tangent", 55, 1, 52, 1),
    Sketcher.Constraint("Tangent", 56, 2, 57, 2),
    Sketcher.Constraint("Tangent", 57, 1, 58, 1),
    Sketcher.Constraint("Tangent", 58, 2, 59, 2),
    Sketcher.Constraint("Tangent", 59, 1, 56, 1),
    Sketcher.Constraint("Tangent", 60, 2, 61, 2),
    Sketcher.Constraint("Tangent", 61, 1, 62, 1),
    Sketcher.Constraint("Tangent", 62, 2, 63, 2),
    Sketcher.Constraint("Tangent", 63, 1, 60, 1),
    Sketcher.Constraint("Tangent", 64, 2, 65, 2),
    Sketcher.Constraint("Tangent", 65, 1, 66, 1),
    Sketcher.Constraint("Tangent", 66, 2, 67, 2),
    Sketcher.Constraint("Tangent", 67, 1, 64, 1),
    Sketcher.Constraint("Tangent", 68, 2, 69, 2),
    Sketcher.Constraint("Tangent", 69, 1, 70, 1),
    Sketcher.Constraint("Tangent", 70, 2, 71, 2),
    Sketcher.Constraint("Tangent", 71, 1, 68, 1),
    Sketcher.Constraint("Equal", 1, 3),
    Sketcher.Constraint("Equal", 3, 5),
    Sketcher.Constraint("Equal", 5, 7),
    Sketcher.Constraint("Equal", 7, 9),
    Sketcher.Constraint("Equal", 9, 11),
    Sketcher.Constraint("Equal", 11, 13),
    Sketcher.Constraint("Equal", 13, 15),
    Sketcher.Constraint("Equal", 15, 17),
    Sketcher.Constraint("Equal", 17, 19),
    Sketcher.Constraint("Equal", 19, 21),
    Sketcher.Constraint("Equal", 21, 23),
    Sketcher.Constraint("Equal", 23, 25),
    Sketcher.Constraint("Equal", 25, 27),
    Sketcher.Constraint("Equal", 27, 29),
    Sketcher.Constraint("Equal", 29, 31),
    Sketcher.Constraint("Equal", 31, 33),
    Sketcher.Constraint("Equal", 33, 35),
    Sketcher.Constraint("Equal", 35, 37),
    Sketcher.Constraint("Equal", 37, 39),
    Sketcher.Constraint("Equal", 39, 41),
    Sketcher.Constraint("Equal", 41, 43),
    Sketcher.Constraint("Equal", 43, 45),
    Sketcher.Constraint("Equal", 45, 47),
    Sketcher.Constraint("Equal", 47, 49),
    Sketcher.Constraint("Equal", 49, 51),
    Sketcher.Constraint("Equal", 51, 53),
    Sketcher.Constraint("Equal", 53, 55),
    Sketcher.Constraint("Equal", 55, 57),
    Sketcher.Constraint("Equal", 57, 59),
    Sketcher.Constraint("Equal", 59, 61),
    Sketcher.Constraint("Equal", 61, 63),
    Sketcher.Constraint("Equal", 63, 65),
    Sketcher.Constraint("Equal", 65, 67),
    Sketcher.Constraint("Equal", 67, 69),
    Sketcher.Constraint("Equal", 69, 71),
    Sketcher.Constraint("Parallel", 2, 36),
    Sketcher.Constraint("Parallel", 6, 40),
    Sketcher.Constraint("Parallel", 10, 44),
    Sketcher.Constraint("Parallel", 14, 48),
    Sketcher.Constraint("Parallel", 18, 52),
    Sketcher.Constraint("Parallel", 22, 56),
    Sketcher.Constraint("Parallel", 26, 60),
    Sketcher.Constraint("Parallel", 30, 64),
    Sketcher.Constraint("Parallel", 34, 68),
    Sketcher.Constraint("Vertical", 3, 3, 0, 2),
    Sketcher.Constraint("Vertical", 39, 3, 36, 2),
    Sketcher.Constraint("Equal", 2, 4),
    Sketcher.Constraint("Equal", 6, 8),
    Sketcher.Constraint("Equal", 10, 12),
    Sketcher.Constraint("Equal", 14, 16),
    Sketcher.Constraint("Equal", 18, 20),
    Sketcher.Constraint("Equal", 22, 24),
    Sketcher.Constraint("Equal", 26, 28),
    Sketcher.Constraint("Equal", 30, 32),
    Sketcher.Constraint("Equal", 38, 40),
    Sketcher.Constraint("Equal", 42, 44),
    Sketcher.Constraint("Equal", 46, 48),
    Sketcher.Constraint("Equal", 50, 52),
    Sketcher.Constraint("Equal", 54, 56),
    Sketcher.Constraint("Equal", 58, 60),
    Sketcher.Constraint("Equal", 62, 64),
    Sketcher.Constraint("Equal", 66, 68),
    Sketcher.Constraint("Radius", 1, Q("0.145 in")),
    Sketcher.Constraint("Distance", 0, Q("0.39 in")),
    Sketcher.Constraint("DistanceY", -1, 1, 7, 1, Q("2.8520999 in")),
    Sketcher.Constraint("DistanceY", -1, 1, 59, 1, Q("0.4862001 in")),
    Sketcher.Constraint("DistanceY", -1, 1, 6, 2, 72.494102),
    Sketcher.Constraint("DistanceY", 24, 2, -1, 1, 43.7556),
    Sketcher.Constraint("DistanceX", -1, 1, 59, 1, 71.200499),
    Sketcher.Constraint("DistanceY", -1, 1, 67, 1, 59.934699),
    Sketcher.Constraint("DistanceY", -1, 1, 1, 3, 69.899532),
    Sketcher.Constraint("DistanceX", 3, 3, -1, 1, 13.62872),
    Sketcher.Constraint("DistanceX", 7, 3, -1, 1, 41.556122),
    Sketcher.Constraint("DistanceY", -1, 1, 9, 3, 47.27444),
    Sketcher.Constraint("DistanceY", -1, 1, 19, 3, 5.96639),
    Sketcher.Constraint("DistanceX", 21, 3, -1, 1, 79.219049),
    Sketcher.Constraint("DistanceX", 25, 3, -1, 1, 67.731988),
    Sketcher.Constraint("DistanceY", 25, 3, -1, 1, 47.386969),
    Sketcher.Constraint("DistanceX", 31, 3, -1, 1, 57.719332),
    Sketcher.Constraint("DistanceY", 33, 3, -1, 1, 75.13016),
    Sketcher.Constraint("DistanceY", 37, 3, -1, 1, 76.63042),
    Sketcher.Constraint("DistanceX", 39, 3, -1, 1, 3.46872),
    Sketcher.Constraint("DistanceX", -1, 1, 41, 3, 24.526952),
    Sketcher.Constraint("DistanceY", 47, 3, -1, 1, 63.337052),
    Sketcher.Constraint("DistanceY", 53, 3, -1, 1, 7.685271),
    Sketcher.Constraint("DistanceX", -1, 1, 57, 3, 62.121608),
    Sketcher.Constraint("DistanceY", -1, 1, 61, 3, 40.65608),
    Sketcher.Constraint("DistanceX", -1, 1, 65, 3, 32.009112),
    Sketcher.Constraint("DistanceX", -1, 1, 67, 3, 40.621891),
    Sketcher.Constraint("DistanceY", -1, 1, 69, 3, 68.399271),
    Sketcher.Constraint("DistanceX", 8, 2, -1, 1, 58.709038),
    Sketcher.Constraint("DistanceY", -1, 1, 8, 2, 48.510218),
    Sketcher.Constraint("DistanceY", -1, 1, 13, 1, 23.530121),
    Sketcher.Constraint("DistanceY", -1, 1, 14, 2, 31.16226),
    Sketcher.Constraint("DistanceY", 17, 1, -1, 1, 2.222421),
    Sketcher.Constraint("DistanceX", 18, 2, -1, 1, 92.590171),
    Sketcher.Constraint("DistanceY", 21, 1, -1, 1, 28.112829),
    Sketcher.Constraint("DistanceY", 28, 2, -1, 1, 61.771828),
    Sketcher.Constraint("DistanceY", 40, 2, -1, 1, 69.26846),
    Sketcher.Constraint("DistanceX", -1, 1, 45, 1, 48.550572),
    Sketcher.Constraint("DistanceX", -1, 1, 48, 2, 56.329082),
    Sketcher.Constraint("DistanceY", 48, 2, -1, 1, 34.956782),
    Sketcher.Constraint("DistanceX", -1, 1, 54, 2, 75.492731),
    Sketcher.Constraint("DistanceX", -1, 1, 60, 2, 51.249082),
    Sketcher.Constraint("DistanceX", -1, 1, 68, 2, 11.296762),
    Sketcher.Constraint("DistanceY", -1, 1, 70, 2, 78.330419),
    Sketcher.Constraint("DistanceX", 13, 3, -1, 1, 76.264113),
    Sketcher.Constraint("DistanceX", 33, 3, -1, 1, 25.589244),
])
sketch3.setExpression("Constraints[134]", "Params.sketch3_radius")
sketch3.setExpression("Constraints[135]", "Params.sketch3_length")
pocket1 = doc.addObject("PartDesign::Pocket", "Pocket")
body.addObject(pocket1)
pocket1.Profile = sketch3
pocket1.Type = "ThroughAll"
pocket1.Reversed = True

# Sketch on XY plane
sketch4 = doc.addObject("Sketcher::SketchObject", "Sketch003")
body.addObject(sketch4)
sketch4.AttachmentSupport = (doc.XY_Plane, [""])
sketch4.MapMode = "FlatFace"
sketch4.addGeometry([
    Part.Circle(V(-8.5, 55.7, 0), V(0, 0, 1), 1.3),  # 0
    Part.Circle(V(-8.5, -62.4, 0), V(0, 0, 1), 1.3),  # 1
    Part.Circle(V(50.5, -3.4, 0), V(0, 0, 1), 1.3),  # 2
    Part.Circle(V(-67.6, -3.4, 0), V(0, 0, 1), 1.3),  # 3
    Part.Circle(V(33.7, 38.8, 0), V(0, 0, 1), 2.5),  # 4
    Part.Circle(V(-50.8, -45.6, 0), V(0, 0, 1), 2.5),  # 5
], False)
sketch4.addConstraint([
    Sketcher.Constraint("Equal", 0, 1),
    Sketcher.Constraint("Equal", 1, 2),
    Sketcher.Constraint("Equal", 2, 3),
    Sketcher.Constraint("Equal", 4, 5),
    Sketcher.Constraint("Horizontal", 2, 3, 3, 3),
    Sketcher.Constraint("Vertical", 0, 3, 1, 3),
    Sketcher.Constraint("Diameter", 0, Q("0.1 in")),
    Sketcher.Constraint("Diameter", 4, Q("0.2 in")),
    Sketcher.Constraint("DistanceY", 1, 3, 0, 3, Q("4.65 in")),
    Sketcher.Constraint("DistanceX", 3, 3, 2, 3, Q("4.65 in")),
    Sketcher.Constraint("DistanceX", 0, 3, 2, 3, Q("2.325 in")),
    Sketcher.Constraint("DistanceY", 2, 3, 0, 3, Q("2.325 in")),
    Sketcher.Constraint("DistanceX", 0, 3, -1, 1, 8.54872),
    Sketcher.Constraint("DistanceY", -1, 1, 4, 3, 38.84176),
    Sketcher.Constraint("DistanceY", -1, 1, 0, 3, 55.689556),
    Sketcher.Constraint("DistanceX", -1, 1, 4, 3, 33.658483),
    Sketcher.Constraint("DistanceX", 5, 3, -1, 1, 50.755924),
    Sketcher.Constraint("DistanceY", 5, 3, -1, 1, 45.572648),
])
sketch4.setExpression("Constraints[6]", "Params.sketch4_diameter")
sketch4.setExpression("Constraints[7]", "Params.sketch4_diameter2")
pocket2 = doc.addObject("PartDesign::Pocket", "Pocket001")
body.addObject(pocket2)
pocket2.Profile = sketch4
pocket2.Type = "ThroughAll"
pocket2.Reversed = True

doc.recompute()
